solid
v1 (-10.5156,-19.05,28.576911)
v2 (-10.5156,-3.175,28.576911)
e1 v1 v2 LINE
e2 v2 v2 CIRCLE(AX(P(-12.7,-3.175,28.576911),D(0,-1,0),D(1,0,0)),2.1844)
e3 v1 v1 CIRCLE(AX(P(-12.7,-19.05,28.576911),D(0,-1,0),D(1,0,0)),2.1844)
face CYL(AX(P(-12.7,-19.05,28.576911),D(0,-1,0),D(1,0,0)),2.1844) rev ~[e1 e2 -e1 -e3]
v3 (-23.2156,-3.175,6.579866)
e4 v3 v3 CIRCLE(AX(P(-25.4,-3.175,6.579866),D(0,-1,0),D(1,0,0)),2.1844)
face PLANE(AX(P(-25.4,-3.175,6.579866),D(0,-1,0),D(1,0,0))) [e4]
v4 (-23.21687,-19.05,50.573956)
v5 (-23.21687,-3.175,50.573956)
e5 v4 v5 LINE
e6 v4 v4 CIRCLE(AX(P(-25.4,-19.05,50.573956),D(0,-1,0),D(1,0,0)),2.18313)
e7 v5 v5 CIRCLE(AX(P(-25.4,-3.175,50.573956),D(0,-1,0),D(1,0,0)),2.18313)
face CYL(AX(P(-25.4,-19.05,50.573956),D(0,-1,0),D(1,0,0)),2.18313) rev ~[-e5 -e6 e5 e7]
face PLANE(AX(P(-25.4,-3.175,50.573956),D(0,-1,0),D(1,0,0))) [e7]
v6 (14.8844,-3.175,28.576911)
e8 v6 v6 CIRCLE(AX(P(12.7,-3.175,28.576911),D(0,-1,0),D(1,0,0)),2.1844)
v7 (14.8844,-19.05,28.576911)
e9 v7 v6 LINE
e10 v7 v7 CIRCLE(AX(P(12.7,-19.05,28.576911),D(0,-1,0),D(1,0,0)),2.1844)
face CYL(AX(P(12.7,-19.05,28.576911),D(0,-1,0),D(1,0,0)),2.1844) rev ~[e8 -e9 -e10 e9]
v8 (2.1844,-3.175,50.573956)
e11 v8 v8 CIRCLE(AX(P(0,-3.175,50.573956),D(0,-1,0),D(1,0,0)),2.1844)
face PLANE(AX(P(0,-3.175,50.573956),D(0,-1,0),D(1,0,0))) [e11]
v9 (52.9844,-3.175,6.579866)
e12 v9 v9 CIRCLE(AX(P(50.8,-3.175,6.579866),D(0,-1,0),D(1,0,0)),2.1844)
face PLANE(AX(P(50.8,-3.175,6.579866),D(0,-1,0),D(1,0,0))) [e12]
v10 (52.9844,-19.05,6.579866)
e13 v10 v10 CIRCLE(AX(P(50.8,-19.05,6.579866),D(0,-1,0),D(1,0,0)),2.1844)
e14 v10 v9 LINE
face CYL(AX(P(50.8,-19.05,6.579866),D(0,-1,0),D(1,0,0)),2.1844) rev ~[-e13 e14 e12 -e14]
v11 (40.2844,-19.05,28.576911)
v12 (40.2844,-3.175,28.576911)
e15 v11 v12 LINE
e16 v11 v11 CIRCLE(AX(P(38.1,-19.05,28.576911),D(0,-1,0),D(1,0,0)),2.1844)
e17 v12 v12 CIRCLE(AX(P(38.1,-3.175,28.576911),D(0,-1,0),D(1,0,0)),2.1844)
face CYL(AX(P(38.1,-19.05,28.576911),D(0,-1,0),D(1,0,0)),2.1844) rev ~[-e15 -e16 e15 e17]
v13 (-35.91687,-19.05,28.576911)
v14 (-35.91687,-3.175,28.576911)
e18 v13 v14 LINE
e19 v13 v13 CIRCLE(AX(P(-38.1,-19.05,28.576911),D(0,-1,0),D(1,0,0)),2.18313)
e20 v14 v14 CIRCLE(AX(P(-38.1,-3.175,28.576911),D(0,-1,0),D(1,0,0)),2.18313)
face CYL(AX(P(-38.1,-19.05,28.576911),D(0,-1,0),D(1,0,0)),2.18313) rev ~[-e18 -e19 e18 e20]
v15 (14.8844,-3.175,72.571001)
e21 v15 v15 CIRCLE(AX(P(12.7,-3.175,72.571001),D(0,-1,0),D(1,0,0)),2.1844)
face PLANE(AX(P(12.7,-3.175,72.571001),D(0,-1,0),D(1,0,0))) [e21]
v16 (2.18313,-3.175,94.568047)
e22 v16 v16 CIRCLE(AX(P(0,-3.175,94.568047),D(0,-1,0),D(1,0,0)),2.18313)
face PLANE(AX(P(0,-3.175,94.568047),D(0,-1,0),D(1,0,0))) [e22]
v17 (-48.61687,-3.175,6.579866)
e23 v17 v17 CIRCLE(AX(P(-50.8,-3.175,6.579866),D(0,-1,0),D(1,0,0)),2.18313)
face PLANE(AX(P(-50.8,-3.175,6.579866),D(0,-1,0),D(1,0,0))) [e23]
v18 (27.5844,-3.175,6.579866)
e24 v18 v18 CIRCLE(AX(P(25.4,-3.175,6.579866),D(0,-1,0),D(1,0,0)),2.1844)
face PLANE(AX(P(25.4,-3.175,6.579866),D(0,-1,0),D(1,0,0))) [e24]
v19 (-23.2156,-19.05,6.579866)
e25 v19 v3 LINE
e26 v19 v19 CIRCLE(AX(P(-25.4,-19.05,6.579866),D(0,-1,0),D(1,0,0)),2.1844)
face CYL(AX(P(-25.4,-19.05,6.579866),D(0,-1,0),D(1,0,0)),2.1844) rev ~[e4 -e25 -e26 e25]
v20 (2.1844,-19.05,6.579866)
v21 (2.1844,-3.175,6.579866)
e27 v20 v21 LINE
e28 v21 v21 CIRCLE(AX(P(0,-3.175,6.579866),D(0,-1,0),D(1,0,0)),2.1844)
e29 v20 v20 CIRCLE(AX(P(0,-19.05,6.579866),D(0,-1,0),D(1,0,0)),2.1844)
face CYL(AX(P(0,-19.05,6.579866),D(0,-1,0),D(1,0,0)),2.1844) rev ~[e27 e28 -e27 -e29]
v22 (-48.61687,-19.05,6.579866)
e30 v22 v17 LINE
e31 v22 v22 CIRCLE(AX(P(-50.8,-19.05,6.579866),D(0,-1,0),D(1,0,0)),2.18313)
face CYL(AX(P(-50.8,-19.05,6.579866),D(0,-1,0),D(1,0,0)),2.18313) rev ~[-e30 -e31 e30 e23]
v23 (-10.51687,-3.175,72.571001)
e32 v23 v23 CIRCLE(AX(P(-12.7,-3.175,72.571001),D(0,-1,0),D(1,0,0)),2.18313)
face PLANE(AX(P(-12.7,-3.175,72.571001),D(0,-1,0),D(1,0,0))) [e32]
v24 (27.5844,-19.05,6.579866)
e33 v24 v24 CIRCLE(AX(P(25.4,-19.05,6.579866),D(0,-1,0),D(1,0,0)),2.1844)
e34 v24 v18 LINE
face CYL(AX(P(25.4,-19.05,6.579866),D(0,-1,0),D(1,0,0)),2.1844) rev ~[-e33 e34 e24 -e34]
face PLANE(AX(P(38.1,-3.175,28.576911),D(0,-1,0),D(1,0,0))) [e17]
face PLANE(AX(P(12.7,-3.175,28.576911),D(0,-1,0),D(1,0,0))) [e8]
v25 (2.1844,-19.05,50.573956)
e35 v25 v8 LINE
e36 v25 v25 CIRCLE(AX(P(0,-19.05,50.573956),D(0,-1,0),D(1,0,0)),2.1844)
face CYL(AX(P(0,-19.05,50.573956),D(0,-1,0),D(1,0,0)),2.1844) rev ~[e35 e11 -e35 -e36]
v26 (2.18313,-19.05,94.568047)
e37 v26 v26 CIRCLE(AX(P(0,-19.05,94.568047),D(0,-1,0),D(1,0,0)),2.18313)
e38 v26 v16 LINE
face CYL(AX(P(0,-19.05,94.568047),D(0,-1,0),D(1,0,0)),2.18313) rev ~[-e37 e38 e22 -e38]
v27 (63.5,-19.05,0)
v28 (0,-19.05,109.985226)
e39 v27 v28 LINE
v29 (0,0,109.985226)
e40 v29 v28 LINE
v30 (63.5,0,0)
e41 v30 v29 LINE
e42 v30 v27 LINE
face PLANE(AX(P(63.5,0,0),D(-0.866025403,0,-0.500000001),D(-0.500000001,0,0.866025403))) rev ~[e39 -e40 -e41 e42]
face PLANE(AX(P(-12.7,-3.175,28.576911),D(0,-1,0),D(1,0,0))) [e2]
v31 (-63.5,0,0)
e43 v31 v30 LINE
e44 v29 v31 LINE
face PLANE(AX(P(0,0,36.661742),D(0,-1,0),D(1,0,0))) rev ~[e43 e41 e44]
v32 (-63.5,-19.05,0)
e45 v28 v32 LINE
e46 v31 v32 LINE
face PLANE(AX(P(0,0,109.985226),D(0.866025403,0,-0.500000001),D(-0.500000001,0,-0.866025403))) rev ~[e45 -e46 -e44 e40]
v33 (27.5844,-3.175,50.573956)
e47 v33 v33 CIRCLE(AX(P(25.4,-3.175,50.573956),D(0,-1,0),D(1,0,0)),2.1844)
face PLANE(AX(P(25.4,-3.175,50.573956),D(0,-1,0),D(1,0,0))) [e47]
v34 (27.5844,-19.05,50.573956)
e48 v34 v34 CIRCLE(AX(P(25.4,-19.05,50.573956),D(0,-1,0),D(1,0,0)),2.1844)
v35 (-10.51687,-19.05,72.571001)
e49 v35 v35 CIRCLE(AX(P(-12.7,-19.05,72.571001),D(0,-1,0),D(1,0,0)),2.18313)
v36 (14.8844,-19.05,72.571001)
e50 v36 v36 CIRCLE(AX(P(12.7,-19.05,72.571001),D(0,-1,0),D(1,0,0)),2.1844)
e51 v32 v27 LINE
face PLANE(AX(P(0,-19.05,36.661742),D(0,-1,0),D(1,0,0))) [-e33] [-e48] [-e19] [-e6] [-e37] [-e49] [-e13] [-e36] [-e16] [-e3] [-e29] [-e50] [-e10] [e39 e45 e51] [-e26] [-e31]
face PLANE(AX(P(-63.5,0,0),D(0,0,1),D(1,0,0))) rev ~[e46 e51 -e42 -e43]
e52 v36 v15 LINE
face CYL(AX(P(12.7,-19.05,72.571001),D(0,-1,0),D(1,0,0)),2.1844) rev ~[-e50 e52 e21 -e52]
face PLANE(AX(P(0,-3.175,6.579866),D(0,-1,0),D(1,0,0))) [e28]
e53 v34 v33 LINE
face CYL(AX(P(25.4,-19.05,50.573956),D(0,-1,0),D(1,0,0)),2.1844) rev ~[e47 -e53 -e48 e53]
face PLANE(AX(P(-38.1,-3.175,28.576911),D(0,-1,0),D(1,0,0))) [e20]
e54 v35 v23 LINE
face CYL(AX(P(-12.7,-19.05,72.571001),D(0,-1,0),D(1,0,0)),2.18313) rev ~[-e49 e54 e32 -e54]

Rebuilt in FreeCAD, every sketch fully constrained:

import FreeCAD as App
import Part
import Sketcher
Q = App.Units.Quantity

doc = App.newDocument("Part")
body = doc.addObject("PartDesign::Body", "Body")

# Sketch on XZ plane
sketch1 = body.newObject("Sketcher::SketchObject", "Sketch")
sketch1.AttachmentSupport = (doc.getObject("XZ_Plane"), [""])
sketch1.MapMode = "FlatFace"
sketch1.addGeometry([
    Part.LineSegment(App.Vector(64, 0, 0), App.Vector(0, 110, 0)),
    Part.LineSegment(App.Vector(0, 110, 0), App.Vector(-64, 0, 0)),
    Part.LineSegment(App.Vector(-64, 0, 0), App.Vector(64, 0, 0)),
], False)
sketch1.addConstraint([
    Sketcher.Constraint("Coincident", 0, 2, 1, 1),
    Sketcher.Constraint("Coincident", 1, 2, 2, 1),
    Sketcher.Constraint("Coincident", 2, 2, 0, 1),
    Sketcher.Constraint("Horizontal", 2),
    Sketcher.Constraint("Symmetric", 1, 2, 2, 2, -1, 1),
    Sketcher.Constraint("PointOnObject", 0, 2, -2),
    Sketcher.Constraint("DistanceX", 2, 1, 2, 2, Q("5 in")),
    Sketcher.Constraint("Distance", 0, Q("5 in")),
])
pad1 = body.newObject("PartDesign::Pad", "Pad")
pad1.Profile = sketch1
pad1.Length = Q("0.75 in")

# Sketch on XZ plane
sketch2 = body.newObject("Sketcher::SketchObject", "Sketch001")
sketch2.AttachmentSupport = (doc.getObject("XZ_Plane"), [""])
sketch2.MapMode = "FlatFace"
sketch2.AttachmentOffset = App.Placement(App.Vector(0, 0, 0.75 * 25.4), App.Rotation())
sketch2.addGeometry([
    Part.Circle(App.Vector(0, 94.6, 0), App.Vector(0, 0, 1), 2.2),  # 0
    Part.Circle(App.Vector(-12.7, 72.6, 0), App.Vector(0, 0, 1), 2.2),  # 1
    Part.Circle(App.Vector(-25.4, 50.6, 0), App.Vector(0, 0, 1), 2.2),  # 2
    Part.Circle(App.Vector(-38.1, 28.6, 0), App.Vector(0, 0, 1), 2.2),  # 3
    Part.Circle(App.Vector(-50.8, 6.6, 0), App.Vector(0, 0, 1), 2.2),  # 4
    Part.Circle(App.Vector(12.7, 72.6, 0), App.Vector(0, 0, 1), 2.2),  # 5
    Part.Circle(App.Vector(25.4, 50.6, 0), App.Vector(0, 0, 1), 2.2),  # 6
    Part.Circle(App.Vector(0, 50.6, 0), App.Vector(0, 0, 1), 2.2),  # 7
    Part.Circle(App.Vector(-12.7, 28.6, 0), App.Vector(0, 0, 1), 2.2),  # 8
    Part.Circle(App.Vector(12.7, 28.6, 0), App.Vector(0, 0, 1), 2.2),  # 9
    Part.Circle(App.Vector(38.1, 28.6, 0), App.Vector(0, 0, 1), 2.2),  # 10
    Part.Circle(App.Vector(-25.4, 6.6, 0), App.Vector(0, 0, 1), 2.2),  # 11
    Part.Circle(App.Vector(0, 6.6, 0), App.Vector(0, 0, 1), 2.2),  # 12
    Part.Circle(App.Vector(25.4, 6.6, 0), App.Vector(0, 0, 1), 2.2),  # 13
    Part.Circle(App.Vector(50.8, 6.6, 0), App.Vector(0, 0, 1), 2.2),  # 14
], False)
sketch2.addConstraint([
    Sketcher.Constraint("Equal", 0, 1),
    Sketcher.Constraint("Equal", 1, 2),
    Sketcher.Constraint("Equal", 2, 3),
    Sketcher.Constraint("Equal", 3, 4),
    Sketcher.Constraint("Equal", 5, 6),
    Sketcher.Constraint("Equal", 6, 7),
    Sketcher.Constraint("Equal", 7, 8),
    Sketcher.Constraint("Equal", 8, 9),
    Sketcher.Constraint("Equal", 9, 10),
    Sketcher.Constraint("Equal", 10, 11),
    Sketcher.Constraint("Equal", 11, 12),
    Sketcher.Constraint("Equal", 12, 13),
    Sketcher.Constraint("Equal", 13, 14),
    Sketcher.Constraint("Symmetric", 1, 3, 5, 3, -2),
    Sketcher.Constraint("Symmetric", 2, 3, 6, 3, -2),
    Sketcher.Constraint("Symmetric", 8, 3, 9, 3, -2),
    Sketcher.Constraint("Symmetric", 3, 3, 10, 3, -2),
    Sketcher.Constraint("Symmetric", 11, 3, 13, 3, -2),
    Sketcher.Constraint("Symmetric", 4, 3, 14, 3, -2),
    Sketcher.Constraint("PointOnObject", 0, 3, -2),
    Sketcher.Constraint("PointOnObject", 7, 3, -2),
    Sketcher.Constraint("PointOnObject", 12, 3, -2),
    Sketcher.Constraint("Horizontal", 6, 3, 7, 3),
    Sketcher.Constraint("Horizontal", 3, 3, 8, 3),
    Sketcher.Constraint("Horizontal", 4, 3, 11, 3),
    Sketcher.Constraint("Horizontal", 11, 3, 12, 3),
    Sketcher.Constraint("Vertical", 1, 3, 8, 3),
    Sketcher.Constraint("Vertical", 2, 3, 11, 3),
    Sketcher.Constraint("Diameter", 5, Q("0.172 in")),
    Sketcher.Constraint("DistanceX", 2, 3, -1, 1, Q("1 in")),
    Sketcher.Constraint("DistanceX", 4, 3, -1, 1, Q("2 in")),
    Sketcher.Constraint("DistanceX", 3, 3, 1, 3, Q("1 in")),
    Sketcher.Constraint("DistanceX", 1, 3, 5, 3, Q("1 in")),
    Sketcher.Constraint("Diameter", 0, Q("0.1719 in")),
    Sketcher.Constraint("DistanceY", -1, 1, 1, 3, 72.571001),
    Sketcher.Constraint("DistanceY", -1, 1, 3, 3, 28.576911),
    Sketcher.Constraint("DistanceY", 2, 3, 0, 3, 43.994091),
    Sketcher.Constraint("DistanceY", 4, 3, 2, 3, 43.99409),
    Sketcher.Constraint("DistanceY", -1, 1, 0, 3, 94.568047),
])
pocket1 = body.newObject("PartDesign::Pocket", "Pocket")
pocket1.Profile = sketch2
pocket1.Length = Q("0.625 in")

doc.recompute()
